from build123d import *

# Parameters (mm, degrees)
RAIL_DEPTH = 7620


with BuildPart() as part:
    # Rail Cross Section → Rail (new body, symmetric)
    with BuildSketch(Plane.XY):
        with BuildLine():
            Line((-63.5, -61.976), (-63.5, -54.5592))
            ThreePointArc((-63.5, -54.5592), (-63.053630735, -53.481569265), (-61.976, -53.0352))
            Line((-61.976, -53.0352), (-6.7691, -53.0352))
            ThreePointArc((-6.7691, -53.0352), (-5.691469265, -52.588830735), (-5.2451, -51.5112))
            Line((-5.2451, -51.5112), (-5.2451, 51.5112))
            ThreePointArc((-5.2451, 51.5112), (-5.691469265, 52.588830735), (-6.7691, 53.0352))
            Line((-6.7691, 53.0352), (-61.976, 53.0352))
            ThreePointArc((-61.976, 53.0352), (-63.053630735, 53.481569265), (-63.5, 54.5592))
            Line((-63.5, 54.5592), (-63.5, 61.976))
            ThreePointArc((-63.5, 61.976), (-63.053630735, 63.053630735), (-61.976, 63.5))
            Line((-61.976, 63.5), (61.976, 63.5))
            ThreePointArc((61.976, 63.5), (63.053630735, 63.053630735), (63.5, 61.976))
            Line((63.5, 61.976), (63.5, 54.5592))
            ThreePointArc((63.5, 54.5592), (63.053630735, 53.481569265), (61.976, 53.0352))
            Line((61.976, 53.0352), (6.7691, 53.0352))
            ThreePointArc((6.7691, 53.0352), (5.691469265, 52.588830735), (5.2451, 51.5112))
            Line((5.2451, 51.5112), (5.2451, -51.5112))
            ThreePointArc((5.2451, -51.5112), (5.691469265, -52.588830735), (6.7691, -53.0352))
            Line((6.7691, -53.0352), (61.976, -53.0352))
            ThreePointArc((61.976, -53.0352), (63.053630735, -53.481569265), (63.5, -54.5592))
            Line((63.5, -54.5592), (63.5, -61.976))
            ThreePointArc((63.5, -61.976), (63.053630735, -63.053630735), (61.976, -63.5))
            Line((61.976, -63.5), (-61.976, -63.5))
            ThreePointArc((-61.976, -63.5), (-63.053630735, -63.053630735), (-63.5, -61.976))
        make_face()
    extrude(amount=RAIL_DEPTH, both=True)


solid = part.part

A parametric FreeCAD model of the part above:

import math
import FreeCAD as App
import Part
import Sketcher
from FreeCAD import Vector
Q = App.Units.Quantity

doc = App.newDocument("Part")
body = doc.addObject("PartDesign::Body", "Body")

sketch1 = doc.addObject("Sketcher::SketchObject", "Sketch")
body.addObject(sketch1)
sketch1.AttachmentSupport = (doc.XY_Plane, [""])
sketch1.MapMode = "FlatFace"
sketch1.addGeometry(Part.LineSegment(Vector(-63.5, -54.6, 0), Vector(-63.5, -62, 0)), False)
sketch1.addGeometry(Part.ArcOfCircle(Part.Circle(Vector(-62, -62, 0), Vector(0, 0, 1), 1.5), math.radians(180), math.radians(270)), False)
sketch1.addGeometry(Part.LineSegment(Vector(-62, -63.5, 0), Vector(62, -63.5, 0)), False)
sketch1.addGeometry(Part.ArcOfCircle(Part.Circle(Vector(62, -62, 0), Vector(0, 0, 1), 1.5), math.radians(-90), math.radians(0)), False)
sketch1.addGeometry(Part.LineSegment(Vector(63.5, -62, 0), Vector(63.5, -54.6, 0)), False)
sketch1.addGeometry(Part.ArcOfCircle(Part.Circle(Vector(62, -54.6, 0), Vector(0, 0, 1), 1.5), math.radians(0), math.radians(90)), False)
sketch1.addGeometry(Part.LineSegment(Vector(62, -53, 0), Vector(6.8, -53, 0)), False)
sketch1.addGeometry(Part.ArcOfCircle(Part.Circle(Vector(6.8, -51.5, 0), Vector(0, 0, 1), 1.5), math.radians(180), math.radians(270)), False)
sketch1.addGeometry(Part.LineSegment(Vector(5.2, -51.5, 0), Vector(5.2, 51.5, 0)), False)
sketch1.addGeometry(Part.ArcOfCircle(Part.Circle(Vector(6.8, 51.5, 0), Vector(0, 0, 1), 1.5), math.radians(90), math.radians(180)), False)
sketch1.addGeometry(Part.LineSegment(Vector(6.8, 53, 0), Vector(62, 53, 0)), False)
sketch1.addGeometry(Part.ArcOfCircle(Part.Circle(Vector(62, 54.6, 0), Vector(0, 0, 1), 1.5), math.radians(-90), math.radians(0)), False)
sketch1.addGeometry(Part.LineSegment(Vector(63.5, 54.6, 0), Vector(63.5, 62, 0)), False)
sketch1.addGeometry(Part.ArcOfCircle(Part.Circle(Vector(62, 62, 0), Vector(0, 0, 1), 1.5), math.radians(0), math.radians(90)), False)
sketch1.addGeometry(Part.LineSegment(Vector(62, 63.5, 0), Vector(-62, 63.5, 0)), False)
sketch1.addGeometry(Part.ArcOfCircle(Part.Circle(Vector(-62, 62, 0), Vector(0, 0, 1), 1.5), math.radians(90), math.radians(180)), False)
sketch1.addGeometry(Part.LineSegment(Vector(-63.5, 62, 0), Vector(-63.5, 54.6, 0)), False)
sketch1.addGeometry(Part.ArcOfCircle(Part.Circle(Vector(-62, 54.6, 0), Vector(0, 0, 1), 1.5), math.radians(180), math.radians(270)), False)
sketch1.addGeometry(Part.LineSegment(Vector(-62, 53, 0), Vector(-6.8, 53, 0)), False)
sketch1.addGeometry(Part.ArcOfCircle(Part.Circle(Vector(-6.8, 51.5, 0), Vector(0, 0, 1), 1.5), math.radians(0), math.radians(90)), False)
sketch1.addGeometry(Part.LineSegment(Vector(-5.2, 51.5, 0), Vector(-5.2, -51.5, 0)), False)
sketch1.addGeometry(Part.ArcOfCircle(Part.Circle(Vector(-6.8, -51.5, 0), Vector(0, 0, 1), 1.5), math.radians(-90), math.radians(0)), False)
sketch1.addGeometry(Part.LineSegment(Vector(-6.8, -53, 0), Vector(-62, -53, 0)), False)
sketch1.addGeometry(Part.ArcOfCircle(Part.Circle(Vector(-62, -54.6, 0), Vector(0, 0, 1), 1.5), math.radians(90), math.radians(180)), False)
sketch1.addConstraint(Sketcher.Constraint("Tangent", 0, 2, 1, 1))
sketch1.addConstraint(Sketcher.Constraint("Tangent", 1, 2, 2, 1))
sketch1.addConstraint(Sketcher.Constraint("Tangent", 2, 2, 3, 1))
sketch1.addConstraint(Sketcher.Constraint("Tangent", 3, 2, 4, 1))
sketch1.addConstraint(Sketcher.Constraint("Tangent", 4, 2, 5, 1))
sketch1.addConstraint(Sketcher.Constraint("Tangent", 5, 2, 6, 1))
sketch1.addConstraint(Sketcher.Constraint("Tangent", 6, 2, 7, 2))
sketch1.addConstraint(Sketcher.Constraint("Tangent", 7, 1, 8, 1))
sketch1.addConstraint(Sketcher.Constraint("Tangent", 8, 2, 9, 2))
sketch1.addConstraint(Sketcher.Constraint("Tangent", 9, 1, 10, 1))
sketch1.addConstraint(Sketcher.Constraint("Tangent", 10, 2, 11, 1))
sketch1.addConstraint(Sketcher.Constraint("Tangent", 11, 2, 12, 1))
sketch1.addConstraint(Sketcher.Constraint("Tangent", 12, 2, 13, 1))
sketch1.addConstraint(Sketcher.Constraint("Tangent", 13, 2, 14, 1))
sketch1.addConstraint(Sketcher.Constraint("Tangent", 14, 2, 15, 1))
sketch1.addConstraint(Sketcher.Constraint("Tangent", 15, 2, 16, 1))
sketch1.addConstraint(Sketcher.Constraint("Tangent", 16, 2, 17, 1))
sketch1.addConstraint(Sketcher.Constraint("Tangent", 17, 2, 18, 1))
sketch1.addConstraint(Sketcher.Constraint("Tangent", 18, 2, 19, 2))
sketch1.addConstraint(Sketcher.Constraint("Tangent", 19, 1, 20, 1))
sketch1.addConstraint(Sketcher.Constraint("Tangent", 20, 2, 21, 2))
sketch1.addConstraint(Sketcher.Constraint("Tangent", 21, 1, 22, 1))
sketch1.addConstraint(Sketcher.Constraint("Tangent", 22, 2, 23, 1))
sketch1.addConstraint(Sketcher.Constraint("Tangent", 23, 2, 0, 1))
sketch1.addConstraint(Sketcher.Constraint("Vertical", 0))
sketch1.addConstraint(Sketcher.Constraint("Horizontal", 2))
sketch1.addConstraint(Sketcher.Constraint("Vertical", 4))
sketch1.addConstraint(Sketcher.Constraint("Horizontal", 6))
sketch1.addConstraint(Sketcher.Constraint("Vertical", 8))
sketch1.addConstraint(Sketcher.Constraint("Horizontal", 10))
sketch1.addConstraint(Sketcher.Constraint("Vertical", 12))
sketch1.addConstraint(Sketcher.Constraint("Horizontal", 14))
sketch1.addConstraint(Sketcher.Constraint("Vertical", 16))
sketch1.addConstraint(Sketcher.Constraint("Horizontal", 18))
sketch1.addConstraint(Sketcher.Constraint("Vertical", 20))
sketch1.addConstraint(Sketcher.Constraint("Horizontal", 22))
sketch1.addConstraint(Sketcher.Constraint("Equal", 1, 3))
sketch1.addConstraint(Sketcher.Constraint("Equal", 3, 5))
sketch1.addConstraint(Sketcher.Constraint("Equal", 5, 7))
sketch1.addConstraint(Sketcher.Constraint("Equal", 7, 9))
sketch1.addConstraint(Sketcher.Constraint("Equal", 9, 11))
sketch1.addConstraint(Sketcher.Constraint("Equal", 11, 13))
sketch1.addConstraint(Sketcher.Constraint("Equal", 13, 15))
sketch1.addConstraint(Sketcher.Constraint("Equal", 15, 17))
sketch1.addConstraint(Sketcher.Constraint("Equal", 17, 19))
sketch1.addConstraint(Sketcher.Constraint("Equal", 19, 21))
sketch1.addConstraint(Sketcher.Constraint("Equal", 21, 23))
sketch1.addConstraint(Sketcher.Constraint("Symmetric", 1, 3, 13, 3, -1, 1))
sketch1.addConstraint(Sketcher.Constraint("Symmetric", 5, 3, 17, 3, -1, 1))
sketch1.addConstraint(Sketcher.Constraint("Symmetric", 9, 3, 21, 3, -1, 1))
sketch1.addConstraint(Sketcher.Constraint("Symmetric", 11, 3, 17, 3, -2))
sketch1.addConstraint(Sketcher.Constraint("Radius", 1, Q("0.06 in")))
sketch1.addConstraint(Sketcher.Constraint("DistanceX", 2, 1, 2, 2, Q("4.88 in")))
sketch1.addConstraint(Sketcher.Constraint("DistanceY", 1, 2, -1, 1, Q("2.5 in")))
sketch1.addConstraint(Sketcher.Constraint("DistanceY", 0, 2, 0, 1, Q("0.292 in")))
sketch1.addConstraint(Sketcher.Constraint("DistanceX", 6, 2, 6, 1, Q("2.1735 in")))
pad1 = doc.addObject("PartDesign::Pad", "Pad")
body.addObject(pad1)
pad1.Profile = sketch1
pad1.Length = Q("600 in")
pad1.Midplane = True

doc.recompute()
